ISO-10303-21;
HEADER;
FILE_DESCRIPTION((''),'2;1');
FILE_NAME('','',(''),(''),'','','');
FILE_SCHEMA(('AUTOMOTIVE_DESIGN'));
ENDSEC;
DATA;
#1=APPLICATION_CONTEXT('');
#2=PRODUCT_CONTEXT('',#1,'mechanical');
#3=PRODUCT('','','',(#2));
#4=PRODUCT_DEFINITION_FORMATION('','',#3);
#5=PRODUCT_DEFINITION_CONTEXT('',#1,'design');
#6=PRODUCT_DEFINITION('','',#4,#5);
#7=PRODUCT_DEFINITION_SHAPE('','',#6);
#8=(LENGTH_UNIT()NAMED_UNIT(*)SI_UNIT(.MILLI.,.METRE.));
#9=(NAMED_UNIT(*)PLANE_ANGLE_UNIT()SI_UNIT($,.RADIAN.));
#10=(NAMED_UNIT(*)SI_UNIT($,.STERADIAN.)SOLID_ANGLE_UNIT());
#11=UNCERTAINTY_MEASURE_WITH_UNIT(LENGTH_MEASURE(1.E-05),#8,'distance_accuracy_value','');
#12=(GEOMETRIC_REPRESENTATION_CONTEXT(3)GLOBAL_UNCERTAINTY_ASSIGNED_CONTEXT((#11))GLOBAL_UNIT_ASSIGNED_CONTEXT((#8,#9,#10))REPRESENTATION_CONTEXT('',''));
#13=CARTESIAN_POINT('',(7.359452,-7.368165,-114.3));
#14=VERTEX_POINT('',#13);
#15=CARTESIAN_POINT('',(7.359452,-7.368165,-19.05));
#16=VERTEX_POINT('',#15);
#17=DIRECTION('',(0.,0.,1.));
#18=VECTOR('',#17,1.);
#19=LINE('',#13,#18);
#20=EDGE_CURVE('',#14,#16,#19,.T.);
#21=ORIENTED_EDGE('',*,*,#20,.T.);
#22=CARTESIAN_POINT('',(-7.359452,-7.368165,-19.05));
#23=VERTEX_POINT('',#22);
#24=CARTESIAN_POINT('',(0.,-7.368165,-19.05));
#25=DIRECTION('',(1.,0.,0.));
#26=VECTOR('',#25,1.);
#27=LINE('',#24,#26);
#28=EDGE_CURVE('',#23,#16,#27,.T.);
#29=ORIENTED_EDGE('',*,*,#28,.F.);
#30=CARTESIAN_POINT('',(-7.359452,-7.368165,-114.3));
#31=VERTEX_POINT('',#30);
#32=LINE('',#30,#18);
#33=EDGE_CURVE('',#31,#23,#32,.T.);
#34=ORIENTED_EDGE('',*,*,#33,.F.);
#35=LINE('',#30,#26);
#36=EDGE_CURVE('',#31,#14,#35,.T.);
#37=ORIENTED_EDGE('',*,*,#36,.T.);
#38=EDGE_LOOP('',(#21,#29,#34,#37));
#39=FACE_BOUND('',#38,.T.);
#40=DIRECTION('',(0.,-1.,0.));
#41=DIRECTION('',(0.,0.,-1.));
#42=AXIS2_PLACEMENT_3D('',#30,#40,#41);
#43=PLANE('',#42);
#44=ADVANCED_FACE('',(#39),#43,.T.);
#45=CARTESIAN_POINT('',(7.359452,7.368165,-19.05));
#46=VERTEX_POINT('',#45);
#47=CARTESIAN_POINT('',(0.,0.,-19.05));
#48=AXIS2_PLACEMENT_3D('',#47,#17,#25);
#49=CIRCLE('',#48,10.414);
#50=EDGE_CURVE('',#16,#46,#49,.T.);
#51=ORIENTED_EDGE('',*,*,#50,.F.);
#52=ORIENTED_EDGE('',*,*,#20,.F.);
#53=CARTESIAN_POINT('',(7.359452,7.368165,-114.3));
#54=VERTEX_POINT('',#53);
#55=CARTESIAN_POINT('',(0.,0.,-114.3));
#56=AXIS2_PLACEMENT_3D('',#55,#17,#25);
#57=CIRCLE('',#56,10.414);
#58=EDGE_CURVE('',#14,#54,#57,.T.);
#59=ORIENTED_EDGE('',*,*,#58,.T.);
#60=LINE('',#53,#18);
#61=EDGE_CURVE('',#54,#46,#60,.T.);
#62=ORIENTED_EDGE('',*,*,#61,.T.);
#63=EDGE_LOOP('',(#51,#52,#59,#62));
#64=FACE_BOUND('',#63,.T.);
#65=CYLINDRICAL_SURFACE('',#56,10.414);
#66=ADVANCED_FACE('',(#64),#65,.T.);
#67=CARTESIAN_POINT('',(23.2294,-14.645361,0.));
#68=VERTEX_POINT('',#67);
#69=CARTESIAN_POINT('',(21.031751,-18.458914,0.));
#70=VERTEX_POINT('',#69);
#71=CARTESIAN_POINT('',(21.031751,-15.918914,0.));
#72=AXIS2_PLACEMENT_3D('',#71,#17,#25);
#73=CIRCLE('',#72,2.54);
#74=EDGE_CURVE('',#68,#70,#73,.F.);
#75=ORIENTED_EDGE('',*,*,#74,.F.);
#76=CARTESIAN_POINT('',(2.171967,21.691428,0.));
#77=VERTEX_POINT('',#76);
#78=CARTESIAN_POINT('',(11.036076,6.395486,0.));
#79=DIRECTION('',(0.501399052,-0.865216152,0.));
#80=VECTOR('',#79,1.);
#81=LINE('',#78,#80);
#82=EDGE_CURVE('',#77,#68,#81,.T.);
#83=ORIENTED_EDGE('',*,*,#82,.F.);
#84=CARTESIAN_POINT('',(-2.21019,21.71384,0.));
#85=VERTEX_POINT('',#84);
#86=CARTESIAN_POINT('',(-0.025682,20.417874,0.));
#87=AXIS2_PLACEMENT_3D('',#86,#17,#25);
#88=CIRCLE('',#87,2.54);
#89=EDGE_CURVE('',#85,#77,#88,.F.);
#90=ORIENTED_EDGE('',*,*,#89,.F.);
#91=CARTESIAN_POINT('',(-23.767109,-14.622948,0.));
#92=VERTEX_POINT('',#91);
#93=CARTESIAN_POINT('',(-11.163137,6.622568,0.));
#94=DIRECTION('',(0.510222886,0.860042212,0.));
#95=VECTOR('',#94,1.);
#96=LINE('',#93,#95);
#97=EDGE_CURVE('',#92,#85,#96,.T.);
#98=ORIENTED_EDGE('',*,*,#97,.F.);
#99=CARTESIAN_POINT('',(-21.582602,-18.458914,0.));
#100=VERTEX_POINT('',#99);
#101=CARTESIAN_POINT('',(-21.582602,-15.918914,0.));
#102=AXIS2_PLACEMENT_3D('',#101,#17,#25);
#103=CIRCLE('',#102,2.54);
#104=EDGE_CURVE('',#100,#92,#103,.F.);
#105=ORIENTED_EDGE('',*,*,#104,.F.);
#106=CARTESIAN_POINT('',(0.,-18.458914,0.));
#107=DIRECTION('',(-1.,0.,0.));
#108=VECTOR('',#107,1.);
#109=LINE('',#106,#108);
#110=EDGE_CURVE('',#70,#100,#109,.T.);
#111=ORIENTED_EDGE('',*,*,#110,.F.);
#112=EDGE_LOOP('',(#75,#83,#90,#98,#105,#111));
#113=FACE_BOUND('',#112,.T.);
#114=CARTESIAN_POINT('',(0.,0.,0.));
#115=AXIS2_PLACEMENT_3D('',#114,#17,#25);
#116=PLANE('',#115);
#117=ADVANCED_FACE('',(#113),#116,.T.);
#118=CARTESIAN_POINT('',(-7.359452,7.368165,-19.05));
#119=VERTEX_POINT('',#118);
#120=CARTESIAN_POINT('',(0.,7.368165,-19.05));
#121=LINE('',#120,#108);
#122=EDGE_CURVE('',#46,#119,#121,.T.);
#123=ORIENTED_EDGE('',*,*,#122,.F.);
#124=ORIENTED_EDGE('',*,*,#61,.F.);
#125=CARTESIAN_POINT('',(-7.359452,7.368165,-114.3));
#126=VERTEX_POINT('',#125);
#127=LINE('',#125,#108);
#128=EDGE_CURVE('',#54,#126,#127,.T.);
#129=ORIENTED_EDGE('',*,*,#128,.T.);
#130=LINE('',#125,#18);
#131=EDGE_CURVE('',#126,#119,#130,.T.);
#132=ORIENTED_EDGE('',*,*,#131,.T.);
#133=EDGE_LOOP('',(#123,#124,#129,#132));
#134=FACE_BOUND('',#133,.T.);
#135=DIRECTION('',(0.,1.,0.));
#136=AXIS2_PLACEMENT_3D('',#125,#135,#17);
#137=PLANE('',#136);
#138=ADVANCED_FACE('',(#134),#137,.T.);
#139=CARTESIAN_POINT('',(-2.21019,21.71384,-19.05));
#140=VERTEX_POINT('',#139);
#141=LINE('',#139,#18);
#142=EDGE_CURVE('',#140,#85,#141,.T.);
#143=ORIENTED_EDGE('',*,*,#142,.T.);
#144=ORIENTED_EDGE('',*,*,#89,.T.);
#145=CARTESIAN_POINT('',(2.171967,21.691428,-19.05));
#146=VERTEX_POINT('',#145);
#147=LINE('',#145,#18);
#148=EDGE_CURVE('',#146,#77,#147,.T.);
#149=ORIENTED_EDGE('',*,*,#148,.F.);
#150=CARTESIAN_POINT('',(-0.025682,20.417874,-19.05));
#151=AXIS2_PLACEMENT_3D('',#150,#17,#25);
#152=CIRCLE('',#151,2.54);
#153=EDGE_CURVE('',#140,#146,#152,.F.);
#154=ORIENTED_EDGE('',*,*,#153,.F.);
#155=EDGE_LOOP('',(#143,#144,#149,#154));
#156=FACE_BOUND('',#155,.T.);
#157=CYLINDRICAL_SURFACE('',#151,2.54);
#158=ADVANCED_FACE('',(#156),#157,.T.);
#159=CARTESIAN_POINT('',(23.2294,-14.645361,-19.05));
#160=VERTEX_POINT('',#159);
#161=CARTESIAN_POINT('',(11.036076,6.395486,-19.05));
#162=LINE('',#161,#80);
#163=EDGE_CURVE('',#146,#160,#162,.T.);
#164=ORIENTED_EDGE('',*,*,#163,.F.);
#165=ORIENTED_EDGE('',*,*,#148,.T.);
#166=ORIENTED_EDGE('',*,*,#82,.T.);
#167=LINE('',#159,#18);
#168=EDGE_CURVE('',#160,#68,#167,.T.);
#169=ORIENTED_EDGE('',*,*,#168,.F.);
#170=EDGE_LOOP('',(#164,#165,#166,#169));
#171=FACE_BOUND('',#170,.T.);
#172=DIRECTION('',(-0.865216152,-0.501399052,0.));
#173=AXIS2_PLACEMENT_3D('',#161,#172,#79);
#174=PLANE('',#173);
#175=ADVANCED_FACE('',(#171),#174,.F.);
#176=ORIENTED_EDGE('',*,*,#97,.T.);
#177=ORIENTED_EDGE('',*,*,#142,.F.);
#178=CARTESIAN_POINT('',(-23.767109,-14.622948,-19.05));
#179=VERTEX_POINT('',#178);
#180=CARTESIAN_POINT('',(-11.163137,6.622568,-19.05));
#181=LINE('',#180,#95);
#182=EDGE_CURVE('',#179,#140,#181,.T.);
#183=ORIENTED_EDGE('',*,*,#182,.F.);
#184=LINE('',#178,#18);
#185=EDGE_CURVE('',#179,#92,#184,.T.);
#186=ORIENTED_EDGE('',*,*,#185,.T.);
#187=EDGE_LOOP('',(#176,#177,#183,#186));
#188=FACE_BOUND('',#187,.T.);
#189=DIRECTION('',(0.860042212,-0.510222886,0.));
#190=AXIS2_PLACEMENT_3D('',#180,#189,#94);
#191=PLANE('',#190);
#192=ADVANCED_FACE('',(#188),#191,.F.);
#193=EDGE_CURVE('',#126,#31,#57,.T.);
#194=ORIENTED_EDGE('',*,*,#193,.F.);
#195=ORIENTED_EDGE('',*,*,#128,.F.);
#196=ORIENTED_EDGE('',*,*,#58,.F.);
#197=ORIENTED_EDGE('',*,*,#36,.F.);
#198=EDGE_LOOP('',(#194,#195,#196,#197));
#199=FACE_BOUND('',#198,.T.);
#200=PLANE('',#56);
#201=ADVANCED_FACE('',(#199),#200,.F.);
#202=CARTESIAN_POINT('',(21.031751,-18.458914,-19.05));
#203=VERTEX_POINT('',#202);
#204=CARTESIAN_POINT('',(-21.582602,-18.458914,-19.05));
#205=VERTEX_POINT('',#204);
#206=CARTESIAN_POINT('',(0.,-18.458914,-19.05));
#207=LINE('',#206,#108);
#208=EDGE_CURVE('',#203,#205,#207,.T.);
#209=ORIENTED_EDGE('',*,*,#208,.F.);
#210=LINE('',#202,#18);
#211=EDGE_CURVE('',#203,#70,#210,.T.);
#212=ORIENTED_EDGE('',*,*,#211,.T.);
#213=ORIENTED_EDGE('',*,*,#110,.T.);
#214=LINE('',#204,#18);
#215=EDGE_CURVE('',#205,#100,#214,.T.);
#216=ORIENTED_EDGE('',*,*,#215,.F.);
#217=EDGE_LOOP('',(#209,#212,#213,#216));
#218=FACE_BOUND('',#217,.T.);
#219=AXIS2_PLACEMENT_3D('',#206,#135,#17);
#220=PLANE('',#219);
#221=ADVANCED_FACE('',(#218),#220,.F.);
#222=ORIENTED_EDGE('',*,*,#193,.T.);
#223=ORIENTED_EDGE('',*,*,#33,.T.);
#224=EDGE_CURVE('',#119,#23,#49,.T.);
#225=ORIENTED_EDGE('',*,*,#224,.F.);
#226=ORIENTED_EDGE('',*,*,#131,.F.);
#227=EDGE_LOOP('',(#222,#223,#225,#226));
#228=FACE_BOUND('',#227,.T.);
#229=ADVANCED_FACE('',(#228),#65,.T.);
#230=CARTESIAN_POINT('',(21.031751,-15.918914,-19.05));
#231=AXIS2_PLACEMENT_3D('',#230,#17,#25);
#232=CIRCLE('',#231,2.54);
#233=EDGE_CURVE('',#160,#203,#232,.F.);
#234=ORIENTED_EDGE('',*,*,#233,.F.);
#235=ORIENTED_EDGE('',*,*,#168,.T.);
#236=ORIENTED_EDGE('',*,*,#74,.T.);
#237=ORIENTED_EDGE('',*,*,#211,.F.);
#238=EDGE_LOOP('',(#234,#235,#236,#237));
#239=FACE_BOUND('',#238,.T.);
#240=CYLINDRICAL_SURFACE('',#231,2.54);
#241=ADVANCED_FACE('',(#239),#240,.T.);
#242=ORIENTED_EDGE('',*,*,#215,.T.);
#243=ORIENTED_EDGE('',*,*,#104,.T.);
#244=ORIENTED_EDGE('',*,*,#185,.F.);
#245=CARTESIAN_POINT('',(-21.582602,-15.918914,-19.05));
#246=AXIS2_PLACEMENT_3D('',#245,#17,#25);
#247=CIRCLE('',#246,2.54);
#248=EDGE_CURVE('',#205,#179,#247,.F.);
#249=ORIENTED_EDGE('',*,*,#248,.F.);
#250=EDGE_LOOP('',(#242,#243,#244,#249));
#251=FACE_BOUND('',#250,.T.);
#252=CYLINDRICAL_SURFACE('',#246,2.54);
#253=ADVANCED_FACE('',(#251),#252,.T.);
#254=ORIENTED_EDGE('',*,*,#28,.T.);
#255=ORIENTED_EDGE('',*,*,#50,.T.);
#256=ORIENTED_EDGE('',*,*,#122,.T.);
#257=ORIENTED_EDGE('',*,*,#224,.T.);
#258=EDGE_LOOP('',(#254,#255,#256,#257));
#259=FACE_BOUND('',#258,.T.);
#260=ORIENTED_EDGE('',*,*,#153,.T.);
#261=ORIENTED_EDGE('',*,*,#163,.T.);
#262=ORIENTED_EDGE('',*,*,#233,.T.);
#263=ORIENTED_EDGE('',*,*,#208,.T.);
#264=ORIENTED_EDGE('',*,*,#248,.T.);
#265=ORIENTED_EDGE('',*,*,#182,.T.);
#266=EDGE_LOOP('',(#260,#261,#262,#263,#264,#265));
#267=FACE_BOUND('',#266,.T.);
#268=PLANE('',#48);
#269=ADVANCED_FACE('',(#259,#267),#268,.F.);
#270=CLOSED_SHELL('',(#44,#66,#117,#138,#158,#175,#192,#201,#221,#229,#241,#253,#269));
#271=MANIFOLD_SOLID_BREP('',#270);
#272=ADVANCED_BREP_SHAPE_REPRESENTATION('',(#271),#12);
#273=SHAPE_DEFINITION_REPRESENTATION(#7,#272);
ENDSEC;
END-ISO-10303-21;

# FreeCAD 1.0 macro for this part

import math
import FreeCAD as App
import Part
import Sketcher
from FreeCAD import Vector
Q = App.Units.Quantity

doc = App.newDocument("Part")
params = doc.addObject("Spreadsheet::Sheet", "Params")
for row, (alias, value) in enumerate([
    ("sketch1_radius", "0.41 in"),
    ("pad1_length", "4.5 in"),
    ("sketch2_radius", "0.1 in"),
    ("pad2_length", "0.75 in"),
], start=1):
    params.set(f"A{row}", alias)
    params.set(f"B{row}", "=" + value)
    params.setAlias(f"B{row}", alias)

body = doc.addObject("PartDesign::Body", "Body")

# Sketch on XY plane
sketch1 = body.newObject("Sketcher::SketchObject", "Sketch")
sketch1.AttachmentSupport = (doc.getObject("XY_Plane"), [""])
sketch1.MapMode = "FlatFace"
sketch1.addGeometry(Part.LineSegment(Vector(-7, -7, 0), Vector(7, -7, 0)), False)
sketch1.addGeometry(Part.ArcOfCircle(Part.Circle(Vector(0, 0, 0), Vector(0, 0, 1), 10), math.radians(-45), math.radians(45)), False)
sketch1.addGeometry(Part.LineSegment(Vector(7, 7, 0), Vector(-7, 7, 0)), False)
sketch1.addGeometry(Part.ArcOfCircle(Part.Circle(Vector(0, 0, 0), Vector(0, 0, 1), 10), math.radians(135), math.radians(225)), False)
sketch1.addConstraint(Sketcher.Constraint("Coincident", 0, 2, 1, 1))
sketch1.addConstraint(Sketcher.Constraint("Coincident", 1, 2, 2, 1))
sketch1.addConstraint(Sketcher.Constraint("Coincident", 2, 2, 3, 1))
sketch1.addConstraint(Sketcher.Constraint("Coincident", 3, 2, 0, 1))
sketch1.addConstraint(Sketcher.Constraint("Horizontal", 0))
sketch1.addConstraint(Sketcher.Constraint("Horizontal", 2))
sketch1.addConstraint(Sketcher.Constraint("Coincident", 1, 3, -1, 1))
sketch1.addConstraint(Sketcher.Constraint("Coincident", 3, 3, -1, 1))
sketch1.addConstraint(Sketcher.Constraint("Equal", 1, 3))
sketch1.addConstraint(Sketcher.Constraint("Vertical", 0, 2, 1, 2))
sketch1.addConstraint(Sketcher.Constraint("Radius", 1, Q("0.41 in")))
sketch1.addConstraint(Sketcher.Constraint("DistanceX", 0, 1, 0, 2, 14.718905))
sketch1.setExpression("Constraints[10]", "Params.sketch1_radius")
pad1 = body.newObject("PartDesign::Pad", "Pad")
pad1.Profile = sketch1
pad1.setExpression("Length", "Params.pad1_length")
pad1.Reversed = True

# Sketch on XY plane
sketch2 = body.newObject("Sketcher::SketchObject", "Sketch001")
sketch2.AttachmentSupport = (doc.getObject("XY_Plane"), [""])
sketch2.MapMode = "FlatFace"
sketch2.addGeometry(Part.LineSegment(Vector(23.2, -14.6, 0), Vector(2.2, 21.7, 0)), False)
sketch2.addGeometry(Part.ArcOfCircle(Part.Circle(Vector(0, 20.4, 0), Vector(0, 0, 1), 2.5), math.radians(30), math.radians(149)), False)
sketch2.addGeometry(Part.LineSegment(Vector(-2.2, 21.7, 0), Vector(-23.8, -14.6, 0)), False)
sketch2.addGeometry(Part.ArcOfCircle(Part.Circle(Vector(-21.6, -15.9, 0), Vector(0, 0, 1), 2.5), math.radians(149), math.radians(270)), False)
sketch2.addGeometry(Part.LineSegment(Vector(-21.6, -18.5, 0), Vector(21, -18.5, 0)), False)
sketch2.addGeometry(Part.ArcOfCircle(Part.Circle(Vector(21, -15.9, 0), Vector(0, 0, 1), 2.5), math.radians(-90), math.radians(30)), False)
sketch2.addConstraint(Sketcher.Constraint("Tangent", 0, 2, 1, 1))
sketch2.addConstraint(Sketcher.Constraint("Tangent", 1, 2, 2, 1))
sketch2.addConstraint(Sketcher.Constraint("Tangent", 2, 2, 3, 1))
sketch2.addConstraint(Sketcher.Constraint("Tangent", 3, 2, 4, 1))
sketch2.addConstraint(Sketcher.Constraint("Tangent", 4, 2, 5, 1))
sketch2.addConstraint(Sketcher.Constraint("Tangent", 5, 2, 0, 1))
sketch2.addConstraint(Sketcher.Constraint("Horizontal", 4))
sketch2.addConstraint(Sketcher.Constraint("Equal", 1, 3))
sketch2.addConstraint(Sketcher.Constraint("Equal", 3, 5))
sketch2.addConstraint(Sketcher.Constraint("Radius", 1, Q("0.1 in")))
sketch2.addConstraint(Sketcher.Constraint("DistanceY", 2, 2, 0, 2, Q("1.4296998 in")))
sketch2.addConstraint(Sketcher.Constraint("DistanceX", -1, 1, 5, 2, 23.2294))
sketch2.addConstraint(Sketcher.Constraint("DistanceY", 5, 2, 1, 2, 36.359201))
sketch2.addConstraint(Sketcher.Constraint("DistanceX", 4, 1, 4, 2, 42.614353))
sketch2.addConstraint(Sketcher.Constraint("DistanceY", -1, 1, 1, 2, 21.71384))
sketch2.setExpression("Constraints[9]", "Params.sketch2_radius")
pad2 = body.newObject("PartDesign::Pad", "Pad001")
pad2.Profile = sketch2
pad2.setExpression("Length", "Params.pad2_length")
pad2.Reversed = True

doc.recompute()
